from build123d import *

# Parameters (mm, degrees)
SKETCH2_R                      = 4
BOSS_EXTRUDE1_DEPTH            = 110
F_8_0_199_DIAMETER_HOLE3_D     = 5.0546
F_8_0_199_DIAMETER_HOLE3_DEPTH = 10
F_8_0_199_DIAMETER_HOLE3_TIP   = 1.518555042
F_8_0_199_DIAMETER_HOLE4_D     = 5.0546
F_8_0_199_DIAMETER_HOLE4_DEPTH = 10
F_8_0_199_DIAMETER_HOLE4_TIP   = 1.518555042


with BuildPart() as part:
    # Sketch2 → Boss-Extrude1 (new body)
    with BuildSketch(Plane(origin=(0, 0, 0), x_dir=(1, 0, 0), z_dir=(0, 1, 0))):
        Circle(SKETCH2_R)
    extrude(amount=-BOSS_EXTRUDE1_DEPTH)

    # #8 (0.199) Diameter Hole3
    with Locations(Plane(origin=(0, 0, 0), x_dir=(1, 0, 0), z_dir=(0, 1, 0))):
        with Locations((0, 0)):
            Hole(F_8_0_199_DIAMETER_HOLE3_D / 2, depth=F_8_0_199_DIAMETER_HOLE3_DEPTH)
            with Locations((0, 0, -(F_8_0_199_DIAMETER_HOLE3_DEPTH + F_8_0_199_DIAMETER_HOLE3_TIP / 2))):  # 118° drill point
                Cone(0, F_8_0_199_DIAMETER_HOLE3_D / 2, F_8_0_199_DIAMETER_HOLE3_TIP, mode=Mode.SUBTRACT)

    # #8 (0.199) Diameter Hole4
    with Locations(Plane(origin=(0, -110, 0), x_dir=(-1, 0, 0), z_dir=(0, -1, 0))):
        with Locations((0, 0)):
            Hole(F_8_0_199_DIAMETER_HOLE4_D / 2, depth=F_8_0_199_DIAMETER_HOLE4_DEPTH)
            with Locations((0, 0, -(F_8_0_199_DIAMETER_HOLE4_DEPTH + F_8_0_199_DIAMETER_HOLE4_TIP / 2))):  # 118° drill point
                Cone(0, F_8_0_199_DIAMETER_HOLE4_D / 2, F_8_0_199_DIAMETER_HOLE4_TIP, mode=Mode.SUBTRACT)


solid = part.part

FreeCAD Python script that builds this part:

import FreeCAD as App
import Part
import Sketcher
from FreeCAD import Vector
Q = App.Units.Quantity

doc = App.newDocument("Part")
body = doc.addObject("PartDesign::Body", "Body")

# Sketch on XZ plane
sketch1 = body.newObject("Sketcher::SketchObject", "Sketch")
sketch1.AttachmentSupport = (doc.getObject("XZ_Plane"), [""])
sketch1.MapMode = "FlatFace"
sketch1.addGeometry(Part.Circle(Vector(0, 0, 0), Vector(0, 0, 1), 4), False)
sketch1.addConstraint([
    Sketcher.Constraint("Coincident", 0, 3, -1, 1),
    Sketcher.Constraint("Diameter", 0, Q("8 mm")),
])
pad1 = body.newObject("PartDesign::Pad", "Pad")
pad1.Profile = sketch1
pad1.Length = 110

# Sketch on XZ plane
sketch2 = body.newObject("Sketcher::SketchObject", "Sketch001")
sketch2.AttachmentSupport = (doc.getObject("XZ_Plane"), [""])
sketch2.MapMode = "FlatFace"
sketch2.addGeometry(Part.Circle(Vector(0, 0, 0), Vector(0, 0, 1), 2.5), False)
sketch2.addConstraint([
    Sketcher.Constraint("Coincident", 0, 3, -1, 1),
    Sketcher.Constraint("Diameter", 0, Q("5.0546 mm")),
])
doc.recompute()
hole = body.newObject("PartDesign::Hole", "Hole")
hole.Profile = sketch2
hole.ThreadType = "None"
hole.Diameter = 5.0546
hole.DepthType = "Dimension"
hole.Depth = 10
hole.DrillPoint = "Angled"
hole.DrillPointAngle = 118
hole.Reversed = True

# Sketch on XZ plane
sketch3 = body.newObject("Sketcher::SketchObject", "Sketch002")
sketch3.AttachmentSupport = (doc.getObject("XZ_Plane"), [""])
sketch3.MapMode = "FlatFace"
sketch3.AttachmentOffset = App.Placement(Vector(0, 0, 110), App.Rotation())
sketch3.addGeometry(Part.Circle(Vector(0, 0, 0), Vector(0, 0, 1), 2.5), False)
sketch3.addConstraint([
    Sketcher.Constraint("Coincident", 0, 3, -1, 1),
    Sketcher.Constraint("Diameter", 0, Q("5.0546 mm")),
])
doc.recompute()
hole2 = body.newObject("PartDesign::Hole", "Hole001")
hole2.Profile = sketch3
hole2.ThreadType = "None"
hole2.Diameter = 5.0546
hole2.DepthType = "Dimension"
hole2.Depth = 10
hole2.DrillPoint = "Angled"
hole2.DrillPointAngle = 118

doc.recompute()
